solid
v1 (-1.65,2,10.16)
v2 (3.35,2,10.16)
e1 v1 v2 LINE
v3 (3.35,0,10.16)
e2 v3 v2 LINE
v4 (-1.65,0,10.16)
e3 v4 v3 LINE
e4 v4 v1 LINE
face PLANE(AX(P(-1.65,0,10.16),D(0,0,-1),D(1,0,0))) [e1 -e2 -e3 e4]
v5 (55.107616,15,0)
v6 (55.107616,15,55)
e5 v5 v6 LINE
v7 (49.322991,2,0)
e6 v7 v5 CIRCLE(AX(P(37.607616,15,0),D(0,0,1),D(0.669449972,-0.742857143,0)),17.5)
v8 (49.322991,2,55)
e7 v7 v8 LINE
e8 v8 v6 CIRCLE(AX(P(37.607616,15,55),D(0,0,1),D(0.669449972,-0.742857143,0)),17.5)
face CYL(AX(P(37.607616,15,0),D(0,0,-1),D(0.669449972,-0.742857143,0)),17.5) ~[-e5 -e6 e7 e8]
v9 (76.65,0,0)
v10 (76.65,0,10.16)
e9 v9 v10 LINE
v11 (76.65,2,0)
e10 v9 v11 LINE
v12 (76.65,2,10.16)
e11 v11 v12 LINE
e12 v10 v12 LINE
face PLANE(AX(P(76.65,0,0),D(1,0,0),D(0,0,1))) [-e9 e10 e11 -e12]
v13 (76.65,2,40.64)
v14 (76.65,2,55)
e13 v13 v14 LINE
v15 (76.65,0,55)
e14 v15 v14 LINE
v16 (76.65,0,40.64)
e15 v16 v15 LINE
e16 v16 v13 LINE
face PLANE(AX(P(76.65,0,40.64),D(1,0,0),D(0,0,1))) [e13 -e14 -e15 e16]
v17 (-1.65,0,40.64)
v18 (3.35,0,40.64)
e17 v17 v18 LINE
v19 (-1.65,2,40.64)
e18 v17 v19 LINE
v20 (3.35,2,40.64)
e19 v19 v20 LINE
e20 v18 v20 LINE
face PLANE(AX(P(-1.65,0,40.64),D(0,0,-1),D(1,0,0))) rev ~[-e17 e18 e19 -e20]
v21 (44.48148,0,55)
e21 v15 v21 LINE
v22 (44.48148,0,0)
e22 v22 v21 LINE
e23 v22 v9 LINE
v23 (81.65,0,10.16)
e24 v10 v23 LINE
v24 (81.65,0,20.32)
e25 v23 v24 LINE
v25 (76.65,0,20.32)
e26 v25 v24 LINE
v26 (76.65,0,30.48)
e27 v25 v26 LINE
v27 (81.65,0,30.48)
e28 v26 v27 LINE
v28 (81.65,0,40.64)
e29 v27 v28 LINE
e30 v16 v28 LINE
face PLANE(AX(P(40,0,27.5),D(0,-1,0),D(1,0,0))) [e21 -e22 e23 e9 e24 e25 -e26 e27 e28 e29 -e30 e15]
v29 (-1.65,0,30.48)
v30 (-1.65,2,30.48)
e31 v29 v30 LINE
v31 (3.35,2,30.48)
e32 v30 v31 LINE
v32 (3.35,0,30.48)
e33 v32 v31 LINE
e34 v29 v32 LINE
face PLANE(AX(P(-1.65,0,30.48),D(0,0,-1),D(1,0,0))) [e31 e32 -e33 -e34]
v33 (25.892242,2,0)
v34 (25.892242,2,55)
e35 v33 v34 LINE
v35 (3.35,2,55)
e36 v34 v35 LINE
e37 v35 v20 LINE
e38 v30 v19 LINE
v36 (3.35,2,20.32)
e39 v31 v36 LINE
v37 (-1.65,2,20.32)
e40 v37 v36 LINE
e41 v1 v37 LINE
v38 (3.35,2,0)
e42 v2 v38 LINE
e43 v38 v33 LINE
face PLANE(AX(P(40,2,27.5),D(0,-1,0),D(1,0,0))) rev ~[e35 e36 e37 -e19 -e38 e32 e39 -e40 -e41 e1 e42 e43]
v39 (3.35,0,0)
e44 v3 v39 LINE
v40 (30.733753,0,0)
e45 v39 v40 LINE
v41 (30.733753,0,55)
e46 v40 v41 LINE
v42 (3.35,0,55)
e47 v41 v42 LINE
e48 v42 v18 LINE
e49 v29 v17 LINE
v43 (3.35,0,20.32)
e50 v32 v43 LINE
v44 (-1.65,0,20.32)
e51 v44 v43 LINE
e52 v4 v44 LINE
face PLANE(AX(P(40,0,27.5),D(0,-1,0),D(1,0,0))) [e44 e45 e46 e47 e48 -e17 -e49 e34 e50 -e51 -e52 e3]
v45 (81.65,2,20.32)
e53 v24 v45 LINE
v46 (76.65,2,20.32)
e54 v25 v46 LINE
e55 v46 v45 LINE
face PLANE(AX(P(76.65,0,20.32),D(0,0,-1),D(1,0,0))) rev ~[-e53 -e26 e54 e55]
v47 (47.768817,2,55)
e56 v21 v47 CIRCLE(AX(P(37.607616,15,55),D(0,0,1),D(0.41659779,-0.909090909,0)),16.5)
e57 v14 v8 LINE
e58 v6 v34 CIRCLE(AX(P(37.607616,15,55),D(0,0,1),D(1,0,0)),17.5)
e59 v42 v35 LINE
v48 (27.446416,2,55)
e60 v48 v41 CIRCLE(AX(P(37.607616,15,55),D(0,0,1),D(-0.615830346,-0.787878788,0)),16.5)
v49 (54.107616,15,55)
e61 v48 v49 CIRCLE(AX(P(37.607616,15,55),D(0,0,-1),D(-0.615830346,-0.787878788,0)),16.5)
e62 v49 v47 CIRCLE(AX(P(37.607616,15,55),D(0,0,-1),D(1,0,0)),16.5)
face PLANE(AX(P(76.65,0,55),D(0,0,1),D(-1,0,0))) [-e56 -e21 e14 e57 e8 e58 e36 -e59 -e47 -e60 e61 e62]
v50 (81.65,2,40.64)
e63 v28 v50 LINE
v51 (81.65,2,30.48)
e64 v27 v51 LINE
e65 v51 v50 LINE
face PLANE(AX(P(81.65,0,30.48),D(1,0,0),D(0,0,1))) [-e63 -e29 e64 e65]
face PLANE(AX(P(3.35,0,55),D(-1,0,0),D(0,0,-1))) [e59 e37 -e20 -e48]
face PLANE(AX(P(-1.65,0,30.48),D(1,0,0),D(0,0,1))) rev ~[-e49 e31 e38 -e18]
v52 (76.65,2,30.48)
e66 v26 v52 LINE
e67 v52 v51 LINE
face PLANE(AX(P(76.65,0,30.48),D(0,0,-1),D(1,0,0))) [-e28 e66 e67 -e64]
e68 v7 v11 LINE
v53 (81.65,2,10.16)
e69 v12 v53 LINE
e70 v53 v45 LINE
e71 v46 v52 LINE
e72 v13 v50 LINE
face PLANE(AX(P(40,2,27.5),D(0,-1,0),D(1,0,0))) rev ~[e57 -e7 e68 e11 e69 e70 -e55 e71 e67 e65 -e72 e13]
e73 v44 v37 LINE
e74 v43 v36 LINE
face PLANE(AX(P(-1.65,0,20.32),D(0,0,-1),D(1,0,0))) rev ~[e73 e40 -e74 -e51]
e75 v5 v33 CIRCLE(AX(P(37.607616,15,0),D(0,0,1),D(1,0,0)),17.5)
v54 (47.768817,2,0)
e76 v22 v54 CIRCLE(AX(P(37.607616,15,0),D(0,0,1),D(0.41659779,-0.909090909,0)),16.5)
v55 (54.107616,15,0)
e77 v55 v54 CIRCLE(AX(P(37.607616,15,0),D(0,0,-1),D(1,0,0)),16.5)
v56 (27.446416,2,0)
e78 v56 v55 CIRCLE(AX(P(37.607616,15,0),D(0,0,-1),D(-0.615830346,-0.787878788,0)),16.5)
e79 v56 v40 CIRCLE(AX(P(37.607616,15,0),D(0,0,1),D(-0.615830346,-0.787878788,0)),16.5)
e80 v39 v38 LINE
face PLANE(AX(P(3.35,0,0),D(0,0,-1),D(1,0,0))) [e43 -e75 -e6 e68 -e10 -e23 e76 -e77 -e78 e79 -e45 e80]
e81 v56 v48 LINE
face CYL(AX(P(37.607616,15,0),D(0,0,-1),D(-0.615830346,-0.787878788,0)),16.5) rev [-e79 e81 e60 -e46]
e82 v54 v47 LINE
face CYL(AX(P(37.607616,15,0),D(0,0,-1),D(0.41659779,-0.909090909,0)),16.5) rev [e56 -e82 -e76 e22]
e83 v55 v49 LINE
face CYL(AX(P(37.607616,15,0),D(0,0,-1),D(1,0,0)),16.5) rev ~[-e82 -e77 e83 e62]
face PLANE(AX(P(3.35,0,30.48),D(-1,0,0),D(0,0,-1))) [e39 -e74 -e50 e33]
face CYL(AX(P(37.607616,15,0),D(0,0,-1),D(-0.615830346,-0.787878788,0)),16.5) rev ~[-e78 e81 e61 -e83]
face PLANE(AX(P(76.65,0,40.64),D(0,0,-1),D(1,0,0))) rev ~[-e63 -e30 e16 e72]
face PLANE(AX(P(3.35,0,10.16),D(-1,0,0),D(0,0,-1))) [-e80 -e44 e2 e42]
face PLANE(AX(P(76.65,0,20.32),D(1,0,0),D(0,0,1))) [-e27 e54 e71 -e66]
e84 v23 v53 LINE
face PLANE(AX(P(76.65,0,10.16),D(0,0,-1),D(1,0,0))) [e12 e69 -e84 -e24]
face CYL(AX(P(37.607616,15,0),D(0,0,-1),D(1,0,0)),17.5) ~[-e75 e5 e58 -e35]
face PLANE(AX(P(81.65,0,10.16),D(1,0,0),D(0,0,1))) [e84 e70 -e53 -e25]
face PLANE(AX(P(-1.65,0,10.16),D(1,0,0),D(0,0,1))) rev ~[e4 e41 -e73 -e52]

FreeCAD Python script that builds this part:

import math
import FreeCAD as App
import Part
import Sketcher
Q = App.Units.Quantity

doc = App.newDocument("Part")
body = doc.addObject("PartDesign::Body", "Body")

# Sketch on XZ plane
sketch1 = body.newObject("Sketcher::SketchObject", "Sketch")
sketch1.AttachmentSupport = (doc.getObject("XZ_Plane"), [""])
sketch1.MapMode = "FlatFace"
sketch1.addGeometry(Part.LineSegment(App.Vector(3, 0, 0), App.Vector(77, 0, 0)), False)
sketch1.addGeometry(Part.LineSegment(App.Vector(77, 0, 0), App.Vector(77, 10, 0)), False)
sketch1.addGeometry(Part.LineSegment(App.Vector(77, 10, 0), App.Vector(82, 10, 0)), False)
sketch1.addGeometry(Part.LineSegment(App.Vector(82, 10, 0), App.Vector(82, 20, 0)), False)
sketch1.addGeometry(Part.LineSegment(App.Vector(82, 20, 0), App.Vector(77, 20, 0)), False)
sketch1.addGeometry(Part.LineSegment(App.Vector(77, 20, 0), App.Vector(77, 30, 0)), False)
sketch1.addGeometry(Part.LineSegment(App.Vector(77, 30, 0), App.Vector(82, 30, 0)), False)
sketch1.addGeometry(Part.LineSegment(App.Vector(82, 30, 0), App.Vector(82, 41, 0)), False)
sketch1.addGeometry(Part.LineSegment(App.Vector(82, 41, 0), App.Vector(77, 41, 0)), False)
sketch1.addGeometry(Part.LineSegment(App.Vector(77, 41, 0), App.Vector(77, 55, 0)), False)
sketch1.addGeometry(Part.LineSegment(App.Vector(77, 55, 0), App.Vector(3, 55, 0)), False)
sketch1.addGeometry(Part.LineSegment(App.Vector(3, 55, 0), App.Vector(3, 41, 0)), False)
sketch1.addGeometry(Part.LineSegment(App.Vector(3, 41, 0), App.Vector(-2, 41, 0)), False)
sketch1.addGeometry(Part.LineSegment(App.Vector(-2, 41, 0), App.Vector(-2, 30, 0)), False)
sketch1.addGeometry(Part.LineSegment(App.Vector(-2, 30, 0), App.Vector(3, 30, 0)), False)
sketch1.addGeometry(Part.LineSegment(App.Vector(3, 30, 0), App.Vector(3, 20, 0)), False)
sketch1.addGeometry(Part.LineSegment(App.Vector(3, 20, 0), App.Vector(-2, 20, 0)), False)
sketch1.addGeometry(Part.LineSegment(App.Vector(-2, 20, 0), App.Vector(-2, 10, 0)), False)
sketch1.addGeometry(Part.LineSegment(App.Vector(-2, 10, 0), App.Vector(3, 10, 0)), False)
sketch1.addGeometry(Part.LineSegment(App.Vector(3, 10, 0), App.Vector(3, 0, 0)), False)
sketch1.addConstraint(Sketcher.Constraint("Coincident", 0, 2, 1, 1))
sketch1.addConstraint(Sketcher.Constraint("Coincident", 1, 2, 2, 1))
sketch1.addConstraint(Sketcher.Constraint("Coincident", 2, 2, 3, 1))
sketch1.addConstraint(Sketcher.Constraint("Coincident", 3, 2, 4, 1))
sketch1.addConstraint(Sketcher.Constraint("Coincident", 4, 2, 5, 1))
sketch1.addConstraint(Sketcher.Constraint("Coincident", 5, 2, 6, 1))
sketch1.addConstraint(Sketcher.Constraint("Coincident", 6, 2, 7, 1))
sketch1.addConstraint(Sketcher.Constraint("Coincident", 7, 2, 8, 1))
sketch1.addConstraint(Sketcher.Constraint("Coincident", 8, 2, 9, 1))
sketch1.addConstraint(Sketcher.Constraint("Coincident", 9, 2, 10, 1))
sketch1.addConstraint(Sketcher.Constraint("Coincident", 10, 2, 11, 1))
sketch1.addConstraint(Sketcher.Constraint("Coincident", 11, 2, 12, 1))
sketch1.addConstraint(Sketcher.Constraint("Coincident", 12, 2, 13, 1))
sketch1.addConstraint(Sketcher.Constraint("Coincident", 13, 2, 14, 1))
sketch1.addConstraint(Sketcher.Constraint("Coincident", 14, 2, 15, 1))
sketch1.addConstraint(Sketcher.Constraint("Coincident", 15, 2, 16, 1))
sketch1.addConstraint(Sketcher.Constraint("Coincident", 16, 2, 17, 1))
sketch1.addConstraint(Sketcher.Constraint("Coincident", 17, 2, 18, 1))
sketch1.addConstraint(Sketcher.Constraint("Coincident", 18, 2, 19, 1))
sketch1.addConstraint(Sketcher.Constraint("Coincident", 19, 2, 0, 1))
sketch1.addConstraint(Sketcher.Constraint("Horizontal", 0))
sketch1.addConstraint(Sketcher.Constraint("Vertical", 1))
sketch1.addConstraint(Sketcher.Constraint("Horizontal", 2))
sketch1.addConstraint(Sketcher.Constraint("Vertical", 3))
sketch1.addConstraint(Sketcher.Constraint("Horizontal", 4))
sketch1.addConstraint(Sketcher.Constraint("Vertical", 5))
sketch1.addConstraint(Sketcher.Constraint("Horizontal", 6))
sketch1.addConstraint(Sketcher.Constraint("Vertical", 7))
sketch1.addConstraint(Sketcher.Constraint("Horizontal", 8))
sketch1.addConstraint(Sketcher.Constraint("Vertical", 9))
sketch1.addConstraint(Sketcher.Constraint("Horizontal", 10))
sketch1.addConstraint(Sketcher.Constraint("Vertical", 11))
sketch1.addConstraint(Sketcher.Constraint("Horizontal", 12))
sketch1.addConstraint(Sketcher.Constraint("Vertical", 13))
sketch1.addConstraint(Sketcher.Constraint("Horizontal", 14))
sketch1.addConstraint(Sketcher.Constraint("Vertical", 15))
sketch1.addConstraint(Sketcher.Constraint("Horizontal", 16))
sketch1.addConstraint(Sketcher.Constraint("Vertical", 17))
sketch1.addConstraint(Sketcher.Constraint("Horizontal", 18))
sketch1.addConstraint(Sketcher.Constraint("Vertical", 19))
sketch1.addConstraint(Sketcher.Constraint("PointOnObject", 0, 2, -1))
sketch1.addConstraint(Sketcher.Constraint("Horizontal", 8, 2, 11, 2))
sketch1.addConstraint(Sketcher.Constraint("Horizontal", 6, 2, 13, 2))
sketch1.addConstraint(Sketcher.Constraint("Horizontal", 4, 2, 15, 2))
sketch1.addConstraint(Sketcher.Constraint("Horizontal", 2, 2, 17, 2))
sketch1.addConstraint(Sketcher.Constraint("Vertical", 1, 2, 4, 2))
sketch1.addConstraint(Sketcher.Constraint("Vertical", 3, 2, 6, 2))
sketch1.addConstraint(Sketcher.Constraint("Vertical", 5, 2, 8, 2))
sketch1.addConstraint(Sketcher.Constraint("Vertical", 11, 2, 14, 2))
sketch1.addConstraint(Sketcher.Constraint("Vertical", 13, 2, 16, 2))
sketch1.addConstraint(Sketcher.Constraint("Vertical", 15, 2, 18, 2))
sketch1.addConstraint(Sketcher.Constraint("Equal", 8, 12))
sketch1.addConstraint(Sketcher.Constraint("Equal", 1, 3))
sketch1.addConstraint(Sketcher.Constraint("Equal", 3, 5))
sketch1.addConstraint(Sketcher.Constraint("Equal", 5, 7))
sketch1.addConstraint(Sketcher.Constraint("DistanceX", 2, 1, 2, 2, Q("5 mm")))
sketch1.addConstraint(Sketcher.Constraint("DistanceX", 0, 1, 0, 2, Q("73.3 mm")))
sketch1.addConstraint(Sketcher.Constraint("DistanceY", -1, 1, 9, 2, Q("55 mm")))
sketch1.addConstraint(Sketcher.Constraint("DistanceY", 1, 1, 1, 2, Q("10.16 mm")))
sketch1.addConstraint(Sketcher.Constraint("DistanceX", -1, 1, 0, 2, Q("76.65 mm")))
pad1 = body.newObject("PartDesign::Pad", "Pad")
pad1.Profile = sketch1
pad1.Length = 2
pad1.Reversed = True

# Sketch on XY plane
sketch2 = body.newObject("Sketcher::SketchObject", "Sketch001")
sketch2.AttachmentSupport = (doc.getObject("XY_Plane"), [""])
sketch2.MapMode = "FlatFace"
sketch2.addGeometry(Part.ArcOfCircle(Part.Circle(App.Vector(37.6, 15, 0), App.Vector(0, 0, 1), 16.5), math.radians(0), math.radians(232)), False)
sketch2.addGeometry(Part.ArcOfCircle(Part.Circle(App.Vector(37.6, 15, 0), App.Vector(0, 0, 1), 16.5), math.radians(-52), math.radians(0)), False)
sketch2.addGeometry(Part.LineSegment(App.Vector(47.8, 2, 0), App.Vector(49.3, 2, 0)), False)
sketch2.addGeometry(Part.ArcOfCircle(Part.Circle(App.Vector(37.6, 15, 0), App.Vector(0, 0, 1), 17.5), math.radians(-48), math.radians(0)), False)
sketch2.addGeometry(Part.ArcOfCircle(Part.Circle(App.Vector(37.6, 15, 0), App.Vector(0, 0, 1), 17.5), math.radians(0), math.radians(228)), False)
sketch2.addGeometry(Part.LineSegment(App.Vector(25.9, 2, 0), App.Vector(27.4, 2, 0)), False)
sketch2.addConstraint(Sketcher.Constraint("Tangent", 0, 1, 1, 2))
sketch2.addConstraint(Sketcher.Constraint("Coincident", 1, 1, 2, 1))
sketch2.addConstraint(Sketcher.Constraint("Coincident", 2, 2, 3, 1))
sketch2.addConstraint(Sketcher.Constraint("Tangent", 3, 2, 4, 1))
sketch2.addConstraint(Sketcher.Constraint("Coincident", 4, 2, 5, 1))
sketch2.addConstraint(Sketcher.Constraint("Coincident", 5, 2, 0, 2))
sketch2.addConstraint(Sketcher.Constraint("Horizontal", 2))
sketch2.addConstraint(Sketcher.Constraint("Horizontal", 5))
sketch2.addConstraint(Sketcher.Constraint("Coincident", 3, 3, 0, 3))
sketch2.addConstraint(Sketcher.Constraint("Equal", 0, 1))
sketch2.addConstraint(Sketcher.Constraint("Equal", 3, 4))
sketch2.addConstraint(Sketcher.Constraint("Horizontal", 4, 3, 0, 1))
sketch2.addConstraint(Sketcher.Constraint("Horizontal", 0, 1, 3, 2))
sketch2.addConstraint(Sketcher.Constraint("Horizontal", 2, 2, 4, 2))
sketch2.addConstraint(Sketcher.Constraint("Radius", 0, Q("16.5 mm")))
sketch2.addConstraint(Sketcher.Constraint("Radius", 3, Q("17.5 mm")))
sketch2.addConstraint(Sketcher.Constraint("DistanceY", -1, 1, 0, 3, Q("15 mm")))
sketch2.addConstraint(Sketcher.Constraint("DistanceY", -1, 1, 1, 1, Q("2 mm")))
sketch2.addConstraint(Sketcher.Constraint("DistanceX", -1, 1, 2, 2, Q("49.322991 mm")))
pad2 = body.newObject("PartDesign::Pad", "Pad001")
pad2.Profile = sketch2
pad2.Length = 55

# Sketch on XY plane
sketch3 = body.newObject("Sketcher::SketchObject", "Sketch002")
sketch3.AttachmentSupport = (doc.getObject("XY_Plane"), [""])
sketch3.MapMode = "FlatFace"
sketch3.addGeometry(Part.ArcOfCircle(Part.Circle(App.Vector(37.6, 15, 0), App.Vector(0, 0, 1), 16.5), math.radians(-128.01), math.radians(-114.62)), False)
sketch3.addGeometry(Part.LineSegment(App.Vector(30.7, 0, 0), App.Vector(44.5, 0, 0)), False)
sketch3.addGeometry(Part.ArcOfCircle(Part.Circle(App.Vector(37.6, 15, 0), App.Vector(0, 0, 1), 16.5), math.radians(-65.38), math.radians(-51.99)), False)
sketch3.addGeometry(Part.LineSegment(App.Vector(47.8, 2, 0), App.Vector(27.4, 2, 0)), False)
sketch3.addConstraint(Sketcher.Constraint("Coincident", 0, 2, 1, 1))
sketch3.addConstraint(Sketcher.Constraint("Coincident", 1, 2, 2, 1))
sketch3.addConstraint(Sketcher.Constraint("Coincident", 2, 2, 3, 1))
sketch3.addConstraint(Sketcher.Constraint("Coincident", 3, 2, 0, 1))
sketch3.addConstraint(Sketcher.Constraint("Horizontal", 1))
sketch3.addConstraint(Sketcher.Constraint("Horizontal", 3))
sketch3.addConstraint(Sketcher.Constraint("Coincident", 2, 3, 0, 3))
sketch3.addConstraint(Sketcher.Constraint("Equal", 0, 2))
sketch3.addConstraint(Sketcher.Constraint("PointOnObject", 0, 2, -1))
sketch3.addConstraint(Sketcher.Constraint("Radius", 0, Q("16.5 mm")))
sketch3.addConstraint(Sketcher.Constraint("DistanceY", -1, 1, 0, 3, Q("15 mm")))
sketch3.addConstraint(Sketcher.Constraint("DistanceY", -1, 1, 2, 2, Q("2 mm")))
sketch3.addConstraint(Sketcher.Constraint("DistanceX", -1, 1, 1, 2, Q("44.48148 mm")))
pocket1 = body.newObject("PartDesign::Pocket", "Pocket")
pocket1.Profile = sketch3
pocket1.Length = 55
pocket1.Reversed = True

doc.recompute()
